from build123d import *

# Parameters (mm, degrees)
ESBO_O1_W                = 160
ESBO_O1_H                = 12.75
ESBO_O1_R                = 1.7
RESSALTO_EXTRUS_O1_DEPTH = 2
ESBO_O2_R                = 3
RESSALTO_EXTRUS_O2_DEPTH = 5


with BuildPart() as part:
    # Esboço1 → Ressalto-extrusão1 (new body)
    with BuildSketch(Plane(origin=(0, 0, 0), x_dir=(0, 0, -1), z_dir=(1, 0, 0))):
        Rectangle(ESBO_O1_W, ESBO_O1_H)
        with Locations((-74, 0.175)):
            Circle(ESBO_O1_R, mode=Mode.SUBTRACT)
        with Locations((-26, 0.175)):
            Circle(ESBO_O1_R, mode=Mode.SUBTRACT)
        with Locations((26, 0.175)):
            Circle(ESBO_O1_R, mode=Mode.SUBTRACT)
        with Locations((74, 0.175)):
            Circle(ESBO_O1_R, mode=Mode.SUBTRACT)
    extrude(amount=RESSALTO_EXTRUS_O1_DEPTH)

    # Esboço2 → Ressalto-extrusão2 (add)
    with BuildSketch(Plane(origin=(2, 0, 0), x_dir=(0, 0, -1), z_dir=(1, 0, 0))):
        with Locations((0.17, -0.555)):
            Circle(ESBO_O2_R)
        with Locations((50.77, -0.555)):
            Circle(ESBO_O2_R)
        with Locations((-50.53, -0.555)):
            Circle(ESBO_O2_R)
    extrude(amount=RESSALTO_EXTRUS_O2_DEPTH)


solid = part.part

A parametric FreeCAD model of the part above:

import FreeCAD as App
import Part
import Sketcher
Q = App.Units.Quantity

doc = App.newDocument("Part")
params = doc.addObject("Spreadsheet::Sheet", "Params")
for row, (alias, value) in enumerate([
    ("sketch1_diameter", "3.4 mm"),
    ("sketch1_height", "160 mm"),
    ("sketch1_width", "12.75 mm"),
    ("pad1_length", "2 mm"),
    ("sketch2_diameter", "6 mm"),
    ("pad2_length", "5 mm"),
], start=1):
    params.set(f"A{row}", alias)
    params.set(f"B{row}", "=" + value)
    params.setAlias(f"B{row}", alias)

body = doc.addObject("PartDesign::Body", "Body")

sketch1 = body.newObject("Sketcher::SketchObject", "Sketch")
sketch1.AttachmentSupport = (doc.getObject("YZ_Plane"), [""])
sketch1.MapMode = "FlatFace"
sketch1.addGeometry([
    Part.LineSegment(App.Vector(6.4, 80, 0), App.Vector(-6.4, 80, 0)),
    Part.LineSegment(App.Vector(-6.4, 80, 0), App.Vector(-6.4, -80, 0)),
    Part.LineSegment(App.Vector(-6.4, -80, 0), App.Vector(6.4, -80, 0)),
    Part.LineSegment(App.Vector(6.4, -80, 0), App.Vector(6.4, 80, 0)),
    Part.Circle(App.Vector(0.2, 74, 0), App.Vector(0, 0, 1), 1.7),
    Part.Circle(App.Vector(0.2, 26, 0), App.Vector(0, 0, 1), 1.7),
    Part.Circle(App.Vector(0.2, -26, 0), App.Vector(0, 0, 1), 1.7),
    Part.Circle(App.Vector(0.2, -74, 0), App.Vector(0, 0, 1), 1.7),
], False)
sketch1.addConstraint([
    Sketcher.Constraint("Coincident", 0, 2, 1, 1),
    Sketcher.Constraint("Coincident", 1, 2, 2, 1),
    Sketcher.Constraint("Coincident", 2, 2, 3, 1),
    Sketcher.Constraint("Coincident", 3, 2, 0, 1),
    Sketcher.Constraint("Horizontal", 0),
    Sketcher.Constraint("Vertical", 1),
    Sketcher.Constraint("Horizontal", 2),
    Sketcher.Constraint("Vertical", 3),
    Sketcher.Constraint("Equal", 4, 5),
    Sketcher.Constraint("Equal", 5, 6),
    Sketcher.Constraint("Equal", 6, 7),
    Sketcher.Constraint("Symmetric", 0, 2, 2, 2, -1, 1),
    Sketcher.Constraint("Symmetric", 5, 3, 6, 3, -1),
    Sketcher.Constraint("Symmetric", 4, 3, 7, 3, -1),
    Sketcher.Constraint("Vertical", 4, 3, 5, 3),
    Sketcher.Constraint("Diameter", 4, Q("3.4 mm")),
    Sketcher.Constraint("DistanceY", 1, 2, 1, 1, Q("160 mm")),
    Sketcher.Constraint("DistanceY", -1, 1, 4, 3, Q("74 mm")),
    Sketcher.Constraint("DistanceY", -1, 1, 5, 3, Q("26 mm")),
    Sketcher.Constraint("DistanceX", 0, 2, 0, 1, Q("12.75 mm")),
    Sketcher.Constraint("DistanceX", 7, 3, 2, 2, Q("6.2 mm")),
])
sketch1.setExpression("Constraints[15]", "Params.sketch1_diameter")
sketch1.setExpression("Constraints[16]", "Params.sketch1_height")
sketch1.setExpression("Constraints[19]", "Params.sketch1_width")
pad1 = body.newObject("PartDesign::Pad", "Pad")
pad1.Profile = sketch1
pad1.setExpression("Length", "Params.pad1_length")

sketch2 = body.newObject("Sketcher::SketchObject", "Sketch001")
sketch2.AttachmentSupport = (doc.getObject("YZ_Plane"), [""])
sketch2.MapMode = "FlatFace"
sketch2.AttachmentOffset = App.Placement(App.Vector(0, 0, 2), App.Rotation())
sketch2.addGeometry([
    Part.Circle(App.Vector(-0.6, -0.2, 0), App.Vector(0, 0, 1), 3),
    Part.Circle(App.Vector(-0.6, -50.8, 0), App.Vector(0, 0, 1), 3),
    Part.Circle(App.Vector(-0.6, 50.5, 0), App.Vector(0, 0, 1), 3),
], False)
sketch2.addConstraint([
    Sketcher.Constraint("Equal", 0, 1),
    Sketcher.Constraint("Equal", 1, 2),
    Sketcher.Constraint("Vertical", 0, 3, 1, 3),
    Sketcher.Constraint("Vertical", 1, 3, 2, 3),
    Sketcher.Constraint("Diameter", 0, Q("6 mm")),
    Sketcher.Constraint("DistanceY", 1, 3, 0, 3, Q("50.6 mm")),
    Sketcher.Constraint("DistanceY", 0, 3, 2, 3, Q("50.7 mm")),
    Sketcher.Constraint("DistanceY", 0, 3, -1, 1, Q("0.17 mm")),
    Sketcher.Constraint("DistanceX", 0, 3, -1, 1, Q("0.555 mm")),
])
sketch2.setExpression("Constraints[4]", "Params.sketch2_diameter")
pad2 = body.newObject("PartDesign::Pad", "Pad001")
pad2.Profile = sketch2
pad2.setExpression("Length", "Params.pad2_length")

doc.recompute()
